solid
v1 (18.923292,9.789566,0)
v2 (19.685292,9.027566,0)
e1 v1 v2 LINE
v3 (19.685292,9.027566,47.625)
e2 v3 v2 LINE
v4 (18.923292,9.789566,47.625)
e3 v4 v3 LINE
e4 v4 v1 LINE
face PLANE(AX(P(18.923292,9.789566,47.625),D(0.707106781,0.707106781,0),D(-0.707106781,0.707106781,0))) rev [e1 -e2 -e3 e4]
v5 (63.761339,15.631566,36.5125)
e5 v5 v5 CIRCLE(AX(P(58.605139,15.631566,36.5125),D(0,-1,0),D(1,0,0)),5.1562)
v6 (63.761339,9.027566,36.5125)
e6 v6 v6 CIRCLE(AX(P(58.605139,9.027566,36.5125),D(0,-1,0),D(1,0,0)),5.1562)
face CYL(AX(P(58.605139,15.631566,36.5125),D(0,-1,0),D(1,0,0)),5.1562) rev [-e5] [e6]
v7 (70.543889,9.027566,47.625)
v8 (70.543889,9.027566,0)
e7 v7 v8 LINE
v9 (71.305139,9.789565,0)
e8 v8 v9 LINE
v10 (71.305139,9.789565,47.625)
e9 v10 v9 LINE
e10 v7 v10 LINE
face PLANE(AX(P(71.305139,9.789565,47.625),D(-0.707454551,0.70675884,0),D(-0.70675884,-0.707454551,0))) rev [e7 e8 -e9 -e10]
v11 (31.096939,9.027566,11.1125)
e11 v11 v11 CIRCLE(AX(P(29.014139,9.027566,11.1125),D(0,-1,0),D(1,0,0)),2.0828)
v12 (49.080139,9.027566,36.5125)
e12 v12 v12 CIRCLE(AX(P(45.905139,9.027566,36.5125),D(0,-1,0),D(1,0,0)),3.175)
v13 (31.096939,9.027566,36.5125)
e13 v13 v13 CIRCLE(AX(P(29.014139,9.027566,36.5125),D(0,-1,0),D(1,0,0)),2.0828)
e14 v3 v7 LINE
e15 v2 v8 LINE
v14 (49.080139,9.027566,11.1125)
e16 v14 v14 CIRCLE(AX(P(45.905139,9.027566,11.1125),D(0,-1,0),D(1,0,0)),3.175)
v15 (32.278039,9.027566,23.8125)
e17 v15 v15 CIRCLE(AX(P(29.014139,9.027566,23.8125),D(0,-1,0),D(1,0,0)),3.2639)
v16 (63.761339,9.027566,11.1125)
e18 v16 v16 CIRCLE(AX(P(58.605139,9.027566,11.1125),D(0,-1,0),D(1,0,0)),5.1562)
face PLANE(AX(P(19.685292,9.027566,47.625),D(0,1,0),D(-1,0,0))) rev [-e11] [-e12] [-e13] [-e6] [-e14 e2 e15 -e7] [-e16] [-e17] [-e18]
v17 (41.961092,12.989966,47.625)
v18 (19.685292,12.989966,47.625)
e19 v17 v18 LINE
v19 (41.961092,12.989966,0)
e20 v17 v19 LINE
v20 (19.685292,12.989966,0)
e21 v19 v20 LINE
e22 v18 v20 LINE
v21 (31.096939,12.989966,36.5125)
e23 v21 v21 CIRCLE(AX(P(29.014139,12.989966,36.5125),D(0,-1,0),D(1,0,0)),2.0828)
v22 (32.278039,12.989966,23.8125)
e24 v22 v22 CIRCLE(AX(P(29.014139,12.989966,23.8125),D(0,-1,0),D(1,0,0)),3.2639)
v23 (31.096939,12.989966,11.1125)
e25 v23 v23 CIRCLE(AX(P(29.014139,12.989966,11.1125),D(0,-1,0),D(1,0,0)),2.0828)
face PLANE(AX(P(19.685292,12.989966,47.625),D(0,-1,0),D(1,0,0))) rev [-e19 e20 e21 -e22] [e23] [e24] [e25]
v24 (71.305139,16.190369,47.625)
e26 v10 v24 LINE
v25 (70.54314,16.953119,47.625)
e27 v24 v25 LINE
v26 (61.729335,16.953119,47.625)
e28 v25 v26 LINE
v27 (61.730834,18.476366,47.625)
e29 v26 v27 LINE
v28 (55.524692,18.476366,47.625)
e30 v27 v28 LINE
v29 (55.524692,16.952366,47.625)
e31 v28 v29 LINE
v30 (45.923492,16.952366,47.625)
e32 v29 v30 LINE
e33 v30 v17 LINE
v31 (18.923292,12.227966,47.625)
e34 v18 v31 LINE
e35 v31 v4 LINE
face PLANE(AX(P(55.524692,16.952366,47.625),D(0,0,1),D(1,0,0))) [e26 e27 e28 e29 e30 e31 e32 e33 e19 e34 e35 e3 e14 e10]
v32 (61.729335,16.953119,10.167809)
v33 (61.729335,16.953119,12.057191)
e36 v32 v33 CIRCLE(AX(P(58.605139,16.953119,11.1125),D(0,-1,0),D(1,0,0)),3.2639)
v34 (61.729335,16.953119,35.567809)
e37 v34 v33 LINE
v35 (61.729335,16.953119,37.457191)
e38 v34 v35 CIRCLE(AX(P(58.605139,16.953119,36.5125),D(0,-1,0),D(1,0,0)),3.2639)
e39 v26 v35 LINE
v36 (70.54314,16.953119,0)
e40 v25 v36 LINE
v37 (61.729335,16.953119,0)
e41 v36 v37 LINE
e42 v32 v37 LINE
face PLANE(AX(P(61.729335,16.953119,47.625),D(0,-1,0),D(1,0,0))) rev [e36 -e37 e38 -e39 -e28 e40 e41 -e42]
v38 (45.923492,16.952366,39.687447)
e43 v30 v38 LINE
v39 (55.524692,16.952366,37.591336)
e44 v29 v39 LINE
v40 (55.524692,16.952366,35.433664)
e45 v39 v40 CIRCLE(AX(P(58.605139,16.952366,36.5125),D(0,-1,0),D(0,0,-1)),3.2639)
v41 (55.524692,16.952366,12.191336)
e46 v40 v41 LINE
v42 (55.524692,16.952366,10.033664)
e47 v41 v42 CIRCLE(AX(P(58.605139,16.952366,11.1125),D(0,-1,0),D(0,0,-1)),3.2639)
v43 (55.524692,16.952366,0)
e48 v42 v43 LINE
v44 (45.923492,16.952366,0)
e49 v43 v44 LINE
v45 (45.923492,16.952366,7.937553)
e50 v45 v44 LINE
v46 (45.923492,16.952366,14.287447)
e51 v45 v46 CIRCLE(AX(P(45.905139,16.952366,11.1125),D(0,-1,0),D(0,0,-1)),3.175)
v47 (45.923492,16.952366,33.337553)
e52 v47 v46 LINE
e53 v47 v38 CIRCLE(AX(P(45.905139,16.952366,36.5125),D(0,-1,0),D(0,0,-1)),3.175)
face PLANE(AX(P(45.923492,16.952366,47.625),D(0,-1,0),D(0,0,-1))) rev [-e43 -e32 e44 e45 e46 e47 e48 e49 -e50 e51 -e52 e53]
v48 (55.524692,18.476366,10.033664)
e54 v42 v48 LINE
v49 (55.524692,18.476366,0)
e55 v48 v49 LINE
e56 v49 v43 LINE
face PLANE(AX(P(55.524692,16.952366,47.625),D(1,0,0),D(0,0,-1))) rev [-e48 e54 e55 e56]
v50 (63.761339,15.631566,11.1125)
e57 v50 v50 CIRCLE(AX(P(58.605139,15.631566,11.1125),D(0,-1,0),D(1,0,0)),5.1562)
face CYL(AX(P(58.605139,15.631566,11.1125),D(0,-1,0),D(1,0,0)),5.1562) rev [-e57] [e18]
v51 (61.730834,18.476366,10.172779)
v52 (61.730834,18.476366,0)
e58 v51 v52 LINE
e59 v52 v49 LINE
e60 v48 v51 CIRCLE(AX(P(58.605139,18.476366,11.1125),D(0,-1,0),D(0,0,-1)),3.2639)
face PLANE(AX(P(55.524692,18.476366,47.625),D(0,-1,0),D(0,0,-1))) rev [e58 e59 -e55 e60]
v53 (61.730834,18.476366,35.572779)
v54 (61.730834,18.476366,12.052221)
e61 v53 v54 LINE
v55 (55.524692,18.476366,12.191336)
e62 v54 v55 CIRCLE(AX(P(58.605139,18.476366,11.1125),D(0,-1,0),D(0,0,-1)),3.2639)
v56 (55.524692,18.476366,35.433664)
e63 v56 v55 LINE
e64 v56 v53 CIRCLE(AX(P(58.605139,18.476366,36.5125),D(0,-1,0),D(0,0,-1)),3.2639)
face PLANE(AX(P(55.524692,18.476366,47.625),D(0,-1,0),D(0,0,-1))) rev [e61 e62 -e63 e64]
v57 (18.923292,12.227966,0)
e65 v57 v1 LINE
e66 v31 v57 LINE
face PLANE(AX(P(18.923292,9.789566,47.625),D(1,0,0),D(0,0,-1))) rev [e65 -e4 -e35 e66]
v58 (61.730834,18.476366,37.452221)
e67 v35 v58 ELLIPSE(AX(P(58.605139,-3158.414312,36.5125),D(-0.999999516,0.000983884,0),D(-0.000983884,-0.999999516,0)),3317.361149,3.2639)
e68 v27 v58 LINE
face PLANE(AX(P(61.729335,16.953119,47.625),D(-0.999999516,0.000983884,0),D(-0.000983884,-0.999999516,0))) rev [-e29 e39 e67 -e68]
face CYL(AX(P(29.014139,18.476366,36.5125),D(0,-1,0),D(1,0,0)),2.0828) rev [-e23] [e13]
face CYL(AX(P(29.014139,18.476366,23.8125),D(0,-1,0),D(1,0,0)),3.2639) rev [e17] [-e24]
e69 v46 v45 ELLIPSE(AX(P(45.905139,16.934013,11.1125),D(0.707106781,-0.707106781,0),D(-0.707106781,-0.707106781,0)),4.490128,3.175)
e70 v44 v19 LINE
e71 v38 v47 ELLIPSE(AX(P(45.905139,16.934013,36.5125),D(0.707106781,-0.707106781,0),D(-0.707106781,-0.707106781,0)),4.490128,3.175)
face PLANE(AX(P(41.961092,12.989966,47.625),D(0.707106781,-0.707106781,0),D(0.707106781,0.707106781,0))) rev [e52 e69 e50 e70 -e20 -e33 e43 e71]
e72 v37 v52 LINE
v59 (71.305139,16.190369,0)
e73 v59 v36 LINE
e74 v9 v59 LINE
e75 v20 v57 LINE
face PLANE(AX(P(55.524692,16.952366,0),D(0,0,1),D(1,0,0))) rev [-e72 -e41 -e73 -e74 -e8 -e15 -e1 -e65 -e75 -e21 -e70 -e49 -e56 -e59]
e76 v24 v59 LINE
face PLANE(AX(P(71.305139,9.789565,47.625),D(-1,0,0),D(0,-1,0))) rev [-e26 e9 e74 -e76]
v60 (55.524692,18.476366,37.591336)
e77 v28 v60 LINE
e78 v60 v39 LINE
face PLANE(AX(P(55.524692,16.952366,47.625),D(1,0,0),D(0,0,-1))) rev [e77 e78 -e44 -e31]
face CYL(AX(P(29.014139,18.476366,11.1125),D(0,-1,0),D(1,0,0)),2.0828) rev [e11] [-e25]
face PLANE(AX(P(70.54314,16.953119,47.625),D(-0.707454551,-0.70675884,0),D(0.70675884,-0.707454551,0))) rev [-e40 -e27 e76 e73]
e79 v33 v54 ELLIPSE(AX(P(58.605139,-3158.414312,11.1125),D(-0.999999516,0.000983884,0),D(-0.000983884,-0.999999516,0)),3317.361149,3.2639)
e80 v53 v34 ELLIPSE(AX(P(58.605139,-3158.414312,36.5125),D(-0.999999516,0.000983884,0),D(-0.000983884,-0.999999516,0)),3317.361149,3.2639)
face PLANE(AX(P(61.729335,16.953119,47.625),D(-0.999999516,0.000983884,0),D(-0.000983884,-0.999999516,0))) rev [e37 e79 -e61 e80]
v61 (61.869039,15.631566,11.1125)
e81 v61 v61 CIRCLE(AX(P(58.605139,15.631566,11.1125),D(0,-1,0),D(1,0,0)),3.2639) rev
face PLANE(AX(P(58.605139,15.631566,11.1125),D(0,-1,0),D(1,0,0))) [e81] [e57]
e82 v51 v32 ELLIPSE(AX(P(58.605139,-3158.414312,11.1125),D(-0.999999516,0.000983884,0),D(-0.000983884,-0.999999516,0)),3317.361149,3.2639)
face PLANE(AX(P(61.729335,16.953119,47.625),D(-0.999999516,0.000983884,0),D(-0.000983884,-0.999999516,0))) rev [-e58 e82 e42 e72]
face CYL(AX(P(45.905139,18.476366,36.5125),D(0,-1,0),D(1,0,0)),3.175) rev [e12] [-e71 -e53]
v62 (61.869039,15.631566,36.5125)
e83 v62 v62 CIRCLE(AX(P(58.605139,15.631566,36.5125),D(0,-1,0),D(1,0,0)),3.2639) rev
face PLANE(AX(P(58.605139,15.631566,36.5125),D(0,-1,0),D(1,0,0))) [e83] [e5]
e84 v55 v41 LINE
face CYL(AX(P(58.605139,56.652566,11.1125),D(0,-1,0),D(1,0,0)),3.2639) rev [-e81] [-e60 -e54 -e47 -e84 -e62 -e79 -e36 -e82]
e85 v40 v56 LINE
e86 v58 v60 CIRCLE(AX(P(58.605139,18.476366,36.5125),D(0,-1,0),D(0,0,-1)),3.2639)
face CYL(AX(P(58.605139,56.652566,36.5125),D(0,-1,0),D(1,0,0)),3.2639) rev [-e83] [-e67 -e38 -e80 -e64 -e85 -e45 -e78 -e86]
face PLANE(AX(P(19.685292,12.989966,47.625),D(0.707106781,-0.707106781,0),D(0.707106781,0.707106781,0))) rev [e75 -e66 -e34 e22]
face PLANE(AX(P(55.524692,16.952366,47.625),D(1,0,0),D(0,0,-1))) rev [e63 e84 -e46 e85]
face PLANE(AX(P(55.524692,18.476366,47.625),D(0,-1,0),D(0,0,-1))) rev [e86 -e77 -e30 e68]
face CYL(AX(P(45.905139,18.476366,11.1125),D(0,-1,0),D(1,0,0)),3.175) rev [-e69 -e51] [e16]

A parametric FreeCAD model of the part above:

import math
import FreeCAD as App
import Part
import Sketcher

V = App.Vector
Q = App.Units.Quantity

doc = App.newDocument("Part")
params = doc.addObject("Spreadsheet::Sheet", "Params")
for row, (alias, value) in enumerate([
    ("sketch1_height", "0.06 in"),
    ("sketch1_width", "0.378 in"),
    ("sketch1_width2", "0.877 in"),
    ("sketch1_width3", "0.3470002 in"),
    ("sketch1_height2", "0.096 in"),
    ("pad1_length", "1.875 in"),
    ("pocket1_length", "1.875 in"),
    ("sketch3_diameter", "0.406 in"),
    ("pocket2_length", "0.26 in"),
    ("sketch4_diameter", "0.25 in"),
    ("sketch5_diameter", "0.164 in"),
    ("sketch5_diameter2", "0.257 in"),
], start=1):
    params.set(f"A{row}", alias)
    params.set(f"B{row}", "=" + value)
    params.setAlias(f"B{row}", alias)

body = doc.addObject("PartDesign::Body", "Body")

sketch1 = body.newObject("Sketcher::SketchObject", "Sketch")
sketch1.AttachmentSupport = (doc.getObject("XY_Plane"), [""])
sketch1.MapMode = "FlatFace"
sketch1.addGeometry([
    Part.LineSegment(V(55.5, 18.5, 0), V(55.5, 17, 0)),
    Part.LineSegment(V(55.5, 17, 0), V(45.9, 17, 0)),
    Part.LineSegment(V(45.9, 17, 0), V(42, 13, 0)),
    Part.LineSegment(V(42, 13, 0), V(19.7, 13, 0)),
    Part.LineSegment(V(19.7, 13, 0), V(18.9, 12.2, 0)),
    Part.LineSegment(V(18.9, 12.2, 0), V(18.9, 9.8, 0)),
    Part.LineSegment(V(18.9, 9.8, 0), V(19.7, 9, 0)),
    Part.LineSegment(V(19.7, 9, 0), V(70.5, 9, 0)),
    Part.LineSegment(V(70.5, 9, 0), V(71.3, 9.8, 0)),
    Part.LineSegment(V(71.3, 9.8, 0), V(71.3, 16.2, 0)),
    Part.LineSegment(V(71.3, 16.2, 0), V(70.5, 17, 0)),
    Part.LineSegment(V(70.5, 17, 0), V(61.7, 17, 0)),
    Part.LineSegment(V(61.7, 17, 0), V(61.7, 18.5, 0)),
    Part.LineSegment(V(61.7, 18.5, 0), V(55.5, 18.5, 0)),
], False)
sketch1.addConstraint([
    Sketcher.Constraint("Coincident", 0, 2, 1, 1),
    Sketcher.Constraint("Coincident", 1, 2, 2, 1),
    Sketcher.Constraint("Coincident", 2, 2, 3, 1),
    Sketcher.Constraint("Coincident", 3, 2, 4, 1),
    Sketcher.Constraint("Coincident", 4, 2, 5, 1),
    Sketcher.Constraint("Coincident", 5, 2, 6, 1),
    Sketcher.Constraint("Coincident", 6, 2, 7, 1),
    Sketcher.Constraint("Coincident", 7, 2, 8, 1),
    Sketcher.Constraint("Coincident", 8, 2, 9, 1),
    Sketcher.Constraint("Coincident", 9, 2, 10, 1),
    Sketcher.Constraint("Coincident", 10, 2, 11, 1),
    Sketcher.Constraint("Coincident", 11, 2, 12, 1),
    Sketcher.Constraint("Coincident", 12, 2, 13, 1),
    Sketcher.Constraint("Coincident", 13, 2, 0, 1),
    Sketcher.Constraint("Vertical", 0),
    Sketcher.Constraint("Horizontal", 1),
    Sketcher.Constraint("Horizontal", 3),
    Sketcher.Constraint("Vertical", 5),
    Sketcher.Constraint("Horizontal", 7),
    Sketcher.Constraint("Vertical", 9),
    Sketcher.Constraint("Horizontal", 11),
    Sketcher.Constraint("Horizontal", 13),
    Sketcher.Constraint("Parallel", 2, 4),
    Sketcher.Constraint("Perpendicular", 4, 6),
    Sketcher.Constraint("Horizontal", 5, 2, 8, 2),
    Sketcher.Constraint("Vertical", 3, 2, 6, 2),
    Sketcher.Constraint("Equal", 4, 6),
    Sketcher.Constraint("DistanceY", 0, 2, 0, 1, Q("0.06 in")),
    Sketcher.Constraint("DistanceX", 1, 2, 1, 1, Q("0.378 in")),
    Sketcher.Constraint("DistanceX", 3, 2, 3, 1, Q("0.877 in")),
    Sketcher.Constraint("DistanceX", 11, 2, 11, 1, Q("0.3470002 in")),
    Sketcher.Constraint("DistanceY", 5, 2, 5, 1, Q("0.096 in")),
    Sketcher.Constraint("DistanceY", 9, 1, 9, 2, Q("0.2520002 in")),
    Sketcher.Constraint("DistanceX", 4, 2, 3, 2, Q("0.03 in")),
    Sketcher.Constraint("DistanceY", 9, 2, 0, 2, Q("0.0299999 in")),
    Sketcher.Constraint("DistanceX", 10, 2, 9, 2, Q("0.03 in")),
    Sketcher.Constraint("Distance", 8, 1.0771),
    Sketcher.Constraint("DistanceX", 11, 2, 12, 2, 0.001499),
    Sketcher.Constraint("Distance", 10, 1.078161),
    Sketcher.Constraint("DistanceX", 7, 1, 7, 2, 50.858597),
    Sketcher.Constraint("DistanceX", -1, 1, 0, 2, 55.524692),
    Sketcher.Constraint("DistanceY", -1, 1, 9, 2, 16.190369),
])
sketch1.setExpression("Constraints[27]", "Params.sketch1_height")
sketch1.setExpression("Constraints[28]", "Params.sketch1_width")
sketch1.setExpression("Constraints[29]", "Params.sketch1_width2")
sketch1.setExpression("Constraints[30]", "Params.sketch1_width3")
sketch1.setExpression("Constraints[31]", "Params.sketch1_height2")
pad1 = body.newObject("PartDesign::Pad", "Pad")
pad1.Profile = sketch1
pad1.setExpression("Length", "Params.pad1_length")

sketch2 = body.newObject("Sketcher::SketchObject", "Sketch001")
sketch2.AttachmentSupport = (doc.getObject("XZ_Plane"), [""])
sketch2.MapMode = "FlatFace"
sketch2.AttachmentOffset = App.Placement(V(0, 0, -9.027566), App.Rotation())
sketch2.addGeometry([
    Part.ArcOfCircle(Part.Circle(V(58.6, 36.5, 0), V(0, 0, 1), 3.3), math.radians(90), math.radians(180)),
    Part.ArcOfCircle(Part.Circle(V(58.6, 36.5, 0), V(0, 0, 1), 3.3), math.radians(180), math.radians(270)),
    Part.ArcOfCircle(Part.Circle(V(58.6, 36.5, 0), V(0, 0, 1), 3.3), math.radians(-90), math.radians(0)),
    Part.ArcOfCircle(Part.Circle(V(58.6, 36.5, 0), V(0, 0, 1), 3.3), math.radians(0), math.radians(90)),
    Part.ArcOfCircle(Part.Circle(V(58.6, 11.1, 0), V(0, 0, 1), 3.3), math.radians(90), math.radians(180)),
    Part.ArcOfCircle(Part.Circle(V(58.6, 11.1, 0), V(0, 0, 1), 3.3), math.radians(180), math.radians(270)),
    Part.ArcOfCircle(Part.Circle(V(58.6, 11.1, 0), V(0, 0, 1), 3.3), math.radians(-90), math.radians(0)),
    Part.ArcOfCircle(Part.Circle(V(58.6, 11.1, 0), V(0, 0, 1), 3.3), math.radians(0), math.radians(90)),
], False)
sketch2.addConstraint([
    Sketcher.Constraint("Tangent", 0, 2, 1, 1),
    Sketcher.Constraint("Tangent", 1, 2, 2, 1),
    Sketcher.Constraint("Tangent", 2, 2, 3, 1),
    Sketcher.Constraint("Tangent", 3, 2, 0, 1),
    Sketcher.Constraint("Tangent", 4, 2, 5, 1),
    Sketcher.Constraint("Tangent", 5, 2, 6, 1),
    Sketcher.Constraint("Tangent", 6, 2, 7, 1),
    Sketcher.Constraint("Tangent", 7, 2, 4, 1),
    Sketcher.Constraint("Equal", 0, 1),
    Sketcher.Constraint("Equal", 3, 4),
    Sketcher.Constraint("Equal", 4, 5),
    Sketcher.Constraint("Horizontal", 3, 3, 0, 2),
    Sketcher.Constraint("Horizontal", 0, 2, 2, 2),
    Sketcher.Constraint("Horizontal", 7, 3, 4, 2),
    Sketcher.Constraint("Horizontal", 4, 2, 6, 2),
    Sketcher.Constraint("Vertical", 3, 3, 4, 3),
    Sketcher.Constraint("Vertical", 7, 3, 1, 2),
    Sketcher.Constraint("Vertical", 1, 2, 3, 2),
    Sketcher.Constraint("Vertical", 3, 2, 5, 2),
    Sketcher.Constraint("Vertical", 5, 2, 7, 2),
    Sketcher.Constraint("DistanceY", 4, 3, 0, 3, Q("1 in")),
    Sketcher.Constraint("Radius", 0, Q("0.1285 in")),
    Sketcher.Constraint("DistanceY", -1, 1, 0, 3, Q("1.4375 in")),
    Sketcher.Constraint("DistanceX", -1, 1, 0, 3, 58.605139),
])
pocket1 = body.newObject("PartDesign::Pocket", "Pocket")
pocket1.Profile = sketch2
pocket1.setExpression("Length", "Params.pocket1_length")

sketch3 = body.newObject("Sketcher::SketchObject", "Sketch002")
sketch3.AttachmentSupport = (doc.getObject("XZ_Plane"), [""])
sketch3.MapMode = "FlatFace"
sketch3.AttachmentOffset = App.Placement(V(0, 0, -9.027566), App.Rotation())
sketch3.addGeometry([
    Part.Circle(V(59, 37, 0), V(0, 0, 1), 5),
    Part.Circle(V(59, 11, 0), V(0, 0, 1), 5),
], False)
sketch3.addConstraint([
    Sketcher.Constraint("Equal", 0, 1),
    Sketcher.Constraint("Vertical", 0, 3, 1, 3),
    Sketcher.Constraint("Diameter", 0, Q("0.406 in")),
    Sketcher.Constraint("DistanceY", 1, 3, 0, 3, Q("1 in")),
    Sketcher.Constraint("DistanceY", -1, 1, 0, 3, Q("1.4375 in")),
    Sketcher.Constraint("DistanceX", -1, 1, 0, 3, 58.605139),
])
sketch3.setExpression("Constraints[2]", "Params.sketch3_diameter")
pocket2 = body.newObject("PartDesign::Pocket", "Pocket001")
pocket2.Profile = sketch3
pocket2.setExpression("Length", "Params.pocket2_length")

sketch4 = body.newObject("Sketcher::SketchObject", "Sketch003")
sketch4.AttachmentSupport = (doc.getObject("XZ_Plane"), [""])
sketch4.MapMode = "FlatFace"
sketch4.AttachmentOffset = App.Placement(V(0, 0, -9.027566), App.Rotation())
sketch4.addGeometry([
    Part.Circle(V(45.9, 36.5, 0), V(0, 0, 1), 3.2),
    Part.Circle(V(45.9, 11.1, 0), V(0, 0, 1), 3.2),
], False)
sketch4.addConstraint([
    Sketcher.Constraint("Equal", 0, 1),
    Sketcher.Constraint("Vertical", 0, 3, 1, 3),
    Sketcher.Constraint("Diameter", 0, Q("0.25 in")),
    Sketcher.Constraint("DistanceY", 1, 3, 0, 3, Q("1 in")),
    Sketcher.Constraint("DistanceY", -1, 1, 0, 3, Q("1.4375 in")),
    Sketcher.Constraint("DistanceX", -1, 1, 0, 3, 45.905139),
])
sketch4.setExpression("Constraints[2]", "Params.sketch4_diameter")
pocket3 = body.newObject("PartDesign::Pocket", "Pocket002")
pocket3.Profile = sketch4
pocket3.Type = "ThroughAll"

sketch5 = body.newObject("Sketcher::SketchObject", "Sketch004")
sketch5.AttachmentSupport = (doc.getObject("XZ_Plane"), [""])
sketch5.MapMode = "FlatFace"
sketch5.AttachmentOffset = App.Placement(V(0, 0, -9.027566), App.Rotation())
sketch5.addGeometry([
    Part.Circle(V(29, 36.5, 0), V(0, 0, 1), 2.1),
    Part.Circle(V(29, 11.1, 0), V(0, 0, 1), 2.1),
    Part.Circle(V(29, 23.8, 0), V(0, 0, 1), 3.3),
], False)
sketch5.addConstraint([
    Sketcher.Constraint("Equal", 0, 1),
    Sketcher.Constraint("Vertical", 0, 3, 1, 3),
    Sketcher.Constraint("Vertical", 1, 3, 2, 3),
    Sketcher.Constraint("Diameter", 0, Q("0.164 in")),
    Sketcher.Constraint("Diameter", 2, Q("0.257 in")),
    Sketcher.Constraint("DistanceY", 1, 3, 0, 3, Q("1 in")),
    Sketcher.Constraint("DistanceY", 1, 3, 2, 3, Q("0.5 in")),
    Sketcher.Constraint("DistanceY", -1, 1, 0, 3, Q("1.4375 in")),
    Sketcher.Constraint("DistanceX", -1, 1, 0, 3, 29.014139),
])
sketch5.setExpression("Constraints[3]", "Params.sketch5_diameter")
sketch5.setExpression("Constraints[4]", "Params.sketch5_diameter2")
pocket4 = body.newObject("PartDesign::Pocket", "Pocket003")
pocket4.Profile = sketch5
pocket4.Type = "ThroughAll"

doc.recompute()
